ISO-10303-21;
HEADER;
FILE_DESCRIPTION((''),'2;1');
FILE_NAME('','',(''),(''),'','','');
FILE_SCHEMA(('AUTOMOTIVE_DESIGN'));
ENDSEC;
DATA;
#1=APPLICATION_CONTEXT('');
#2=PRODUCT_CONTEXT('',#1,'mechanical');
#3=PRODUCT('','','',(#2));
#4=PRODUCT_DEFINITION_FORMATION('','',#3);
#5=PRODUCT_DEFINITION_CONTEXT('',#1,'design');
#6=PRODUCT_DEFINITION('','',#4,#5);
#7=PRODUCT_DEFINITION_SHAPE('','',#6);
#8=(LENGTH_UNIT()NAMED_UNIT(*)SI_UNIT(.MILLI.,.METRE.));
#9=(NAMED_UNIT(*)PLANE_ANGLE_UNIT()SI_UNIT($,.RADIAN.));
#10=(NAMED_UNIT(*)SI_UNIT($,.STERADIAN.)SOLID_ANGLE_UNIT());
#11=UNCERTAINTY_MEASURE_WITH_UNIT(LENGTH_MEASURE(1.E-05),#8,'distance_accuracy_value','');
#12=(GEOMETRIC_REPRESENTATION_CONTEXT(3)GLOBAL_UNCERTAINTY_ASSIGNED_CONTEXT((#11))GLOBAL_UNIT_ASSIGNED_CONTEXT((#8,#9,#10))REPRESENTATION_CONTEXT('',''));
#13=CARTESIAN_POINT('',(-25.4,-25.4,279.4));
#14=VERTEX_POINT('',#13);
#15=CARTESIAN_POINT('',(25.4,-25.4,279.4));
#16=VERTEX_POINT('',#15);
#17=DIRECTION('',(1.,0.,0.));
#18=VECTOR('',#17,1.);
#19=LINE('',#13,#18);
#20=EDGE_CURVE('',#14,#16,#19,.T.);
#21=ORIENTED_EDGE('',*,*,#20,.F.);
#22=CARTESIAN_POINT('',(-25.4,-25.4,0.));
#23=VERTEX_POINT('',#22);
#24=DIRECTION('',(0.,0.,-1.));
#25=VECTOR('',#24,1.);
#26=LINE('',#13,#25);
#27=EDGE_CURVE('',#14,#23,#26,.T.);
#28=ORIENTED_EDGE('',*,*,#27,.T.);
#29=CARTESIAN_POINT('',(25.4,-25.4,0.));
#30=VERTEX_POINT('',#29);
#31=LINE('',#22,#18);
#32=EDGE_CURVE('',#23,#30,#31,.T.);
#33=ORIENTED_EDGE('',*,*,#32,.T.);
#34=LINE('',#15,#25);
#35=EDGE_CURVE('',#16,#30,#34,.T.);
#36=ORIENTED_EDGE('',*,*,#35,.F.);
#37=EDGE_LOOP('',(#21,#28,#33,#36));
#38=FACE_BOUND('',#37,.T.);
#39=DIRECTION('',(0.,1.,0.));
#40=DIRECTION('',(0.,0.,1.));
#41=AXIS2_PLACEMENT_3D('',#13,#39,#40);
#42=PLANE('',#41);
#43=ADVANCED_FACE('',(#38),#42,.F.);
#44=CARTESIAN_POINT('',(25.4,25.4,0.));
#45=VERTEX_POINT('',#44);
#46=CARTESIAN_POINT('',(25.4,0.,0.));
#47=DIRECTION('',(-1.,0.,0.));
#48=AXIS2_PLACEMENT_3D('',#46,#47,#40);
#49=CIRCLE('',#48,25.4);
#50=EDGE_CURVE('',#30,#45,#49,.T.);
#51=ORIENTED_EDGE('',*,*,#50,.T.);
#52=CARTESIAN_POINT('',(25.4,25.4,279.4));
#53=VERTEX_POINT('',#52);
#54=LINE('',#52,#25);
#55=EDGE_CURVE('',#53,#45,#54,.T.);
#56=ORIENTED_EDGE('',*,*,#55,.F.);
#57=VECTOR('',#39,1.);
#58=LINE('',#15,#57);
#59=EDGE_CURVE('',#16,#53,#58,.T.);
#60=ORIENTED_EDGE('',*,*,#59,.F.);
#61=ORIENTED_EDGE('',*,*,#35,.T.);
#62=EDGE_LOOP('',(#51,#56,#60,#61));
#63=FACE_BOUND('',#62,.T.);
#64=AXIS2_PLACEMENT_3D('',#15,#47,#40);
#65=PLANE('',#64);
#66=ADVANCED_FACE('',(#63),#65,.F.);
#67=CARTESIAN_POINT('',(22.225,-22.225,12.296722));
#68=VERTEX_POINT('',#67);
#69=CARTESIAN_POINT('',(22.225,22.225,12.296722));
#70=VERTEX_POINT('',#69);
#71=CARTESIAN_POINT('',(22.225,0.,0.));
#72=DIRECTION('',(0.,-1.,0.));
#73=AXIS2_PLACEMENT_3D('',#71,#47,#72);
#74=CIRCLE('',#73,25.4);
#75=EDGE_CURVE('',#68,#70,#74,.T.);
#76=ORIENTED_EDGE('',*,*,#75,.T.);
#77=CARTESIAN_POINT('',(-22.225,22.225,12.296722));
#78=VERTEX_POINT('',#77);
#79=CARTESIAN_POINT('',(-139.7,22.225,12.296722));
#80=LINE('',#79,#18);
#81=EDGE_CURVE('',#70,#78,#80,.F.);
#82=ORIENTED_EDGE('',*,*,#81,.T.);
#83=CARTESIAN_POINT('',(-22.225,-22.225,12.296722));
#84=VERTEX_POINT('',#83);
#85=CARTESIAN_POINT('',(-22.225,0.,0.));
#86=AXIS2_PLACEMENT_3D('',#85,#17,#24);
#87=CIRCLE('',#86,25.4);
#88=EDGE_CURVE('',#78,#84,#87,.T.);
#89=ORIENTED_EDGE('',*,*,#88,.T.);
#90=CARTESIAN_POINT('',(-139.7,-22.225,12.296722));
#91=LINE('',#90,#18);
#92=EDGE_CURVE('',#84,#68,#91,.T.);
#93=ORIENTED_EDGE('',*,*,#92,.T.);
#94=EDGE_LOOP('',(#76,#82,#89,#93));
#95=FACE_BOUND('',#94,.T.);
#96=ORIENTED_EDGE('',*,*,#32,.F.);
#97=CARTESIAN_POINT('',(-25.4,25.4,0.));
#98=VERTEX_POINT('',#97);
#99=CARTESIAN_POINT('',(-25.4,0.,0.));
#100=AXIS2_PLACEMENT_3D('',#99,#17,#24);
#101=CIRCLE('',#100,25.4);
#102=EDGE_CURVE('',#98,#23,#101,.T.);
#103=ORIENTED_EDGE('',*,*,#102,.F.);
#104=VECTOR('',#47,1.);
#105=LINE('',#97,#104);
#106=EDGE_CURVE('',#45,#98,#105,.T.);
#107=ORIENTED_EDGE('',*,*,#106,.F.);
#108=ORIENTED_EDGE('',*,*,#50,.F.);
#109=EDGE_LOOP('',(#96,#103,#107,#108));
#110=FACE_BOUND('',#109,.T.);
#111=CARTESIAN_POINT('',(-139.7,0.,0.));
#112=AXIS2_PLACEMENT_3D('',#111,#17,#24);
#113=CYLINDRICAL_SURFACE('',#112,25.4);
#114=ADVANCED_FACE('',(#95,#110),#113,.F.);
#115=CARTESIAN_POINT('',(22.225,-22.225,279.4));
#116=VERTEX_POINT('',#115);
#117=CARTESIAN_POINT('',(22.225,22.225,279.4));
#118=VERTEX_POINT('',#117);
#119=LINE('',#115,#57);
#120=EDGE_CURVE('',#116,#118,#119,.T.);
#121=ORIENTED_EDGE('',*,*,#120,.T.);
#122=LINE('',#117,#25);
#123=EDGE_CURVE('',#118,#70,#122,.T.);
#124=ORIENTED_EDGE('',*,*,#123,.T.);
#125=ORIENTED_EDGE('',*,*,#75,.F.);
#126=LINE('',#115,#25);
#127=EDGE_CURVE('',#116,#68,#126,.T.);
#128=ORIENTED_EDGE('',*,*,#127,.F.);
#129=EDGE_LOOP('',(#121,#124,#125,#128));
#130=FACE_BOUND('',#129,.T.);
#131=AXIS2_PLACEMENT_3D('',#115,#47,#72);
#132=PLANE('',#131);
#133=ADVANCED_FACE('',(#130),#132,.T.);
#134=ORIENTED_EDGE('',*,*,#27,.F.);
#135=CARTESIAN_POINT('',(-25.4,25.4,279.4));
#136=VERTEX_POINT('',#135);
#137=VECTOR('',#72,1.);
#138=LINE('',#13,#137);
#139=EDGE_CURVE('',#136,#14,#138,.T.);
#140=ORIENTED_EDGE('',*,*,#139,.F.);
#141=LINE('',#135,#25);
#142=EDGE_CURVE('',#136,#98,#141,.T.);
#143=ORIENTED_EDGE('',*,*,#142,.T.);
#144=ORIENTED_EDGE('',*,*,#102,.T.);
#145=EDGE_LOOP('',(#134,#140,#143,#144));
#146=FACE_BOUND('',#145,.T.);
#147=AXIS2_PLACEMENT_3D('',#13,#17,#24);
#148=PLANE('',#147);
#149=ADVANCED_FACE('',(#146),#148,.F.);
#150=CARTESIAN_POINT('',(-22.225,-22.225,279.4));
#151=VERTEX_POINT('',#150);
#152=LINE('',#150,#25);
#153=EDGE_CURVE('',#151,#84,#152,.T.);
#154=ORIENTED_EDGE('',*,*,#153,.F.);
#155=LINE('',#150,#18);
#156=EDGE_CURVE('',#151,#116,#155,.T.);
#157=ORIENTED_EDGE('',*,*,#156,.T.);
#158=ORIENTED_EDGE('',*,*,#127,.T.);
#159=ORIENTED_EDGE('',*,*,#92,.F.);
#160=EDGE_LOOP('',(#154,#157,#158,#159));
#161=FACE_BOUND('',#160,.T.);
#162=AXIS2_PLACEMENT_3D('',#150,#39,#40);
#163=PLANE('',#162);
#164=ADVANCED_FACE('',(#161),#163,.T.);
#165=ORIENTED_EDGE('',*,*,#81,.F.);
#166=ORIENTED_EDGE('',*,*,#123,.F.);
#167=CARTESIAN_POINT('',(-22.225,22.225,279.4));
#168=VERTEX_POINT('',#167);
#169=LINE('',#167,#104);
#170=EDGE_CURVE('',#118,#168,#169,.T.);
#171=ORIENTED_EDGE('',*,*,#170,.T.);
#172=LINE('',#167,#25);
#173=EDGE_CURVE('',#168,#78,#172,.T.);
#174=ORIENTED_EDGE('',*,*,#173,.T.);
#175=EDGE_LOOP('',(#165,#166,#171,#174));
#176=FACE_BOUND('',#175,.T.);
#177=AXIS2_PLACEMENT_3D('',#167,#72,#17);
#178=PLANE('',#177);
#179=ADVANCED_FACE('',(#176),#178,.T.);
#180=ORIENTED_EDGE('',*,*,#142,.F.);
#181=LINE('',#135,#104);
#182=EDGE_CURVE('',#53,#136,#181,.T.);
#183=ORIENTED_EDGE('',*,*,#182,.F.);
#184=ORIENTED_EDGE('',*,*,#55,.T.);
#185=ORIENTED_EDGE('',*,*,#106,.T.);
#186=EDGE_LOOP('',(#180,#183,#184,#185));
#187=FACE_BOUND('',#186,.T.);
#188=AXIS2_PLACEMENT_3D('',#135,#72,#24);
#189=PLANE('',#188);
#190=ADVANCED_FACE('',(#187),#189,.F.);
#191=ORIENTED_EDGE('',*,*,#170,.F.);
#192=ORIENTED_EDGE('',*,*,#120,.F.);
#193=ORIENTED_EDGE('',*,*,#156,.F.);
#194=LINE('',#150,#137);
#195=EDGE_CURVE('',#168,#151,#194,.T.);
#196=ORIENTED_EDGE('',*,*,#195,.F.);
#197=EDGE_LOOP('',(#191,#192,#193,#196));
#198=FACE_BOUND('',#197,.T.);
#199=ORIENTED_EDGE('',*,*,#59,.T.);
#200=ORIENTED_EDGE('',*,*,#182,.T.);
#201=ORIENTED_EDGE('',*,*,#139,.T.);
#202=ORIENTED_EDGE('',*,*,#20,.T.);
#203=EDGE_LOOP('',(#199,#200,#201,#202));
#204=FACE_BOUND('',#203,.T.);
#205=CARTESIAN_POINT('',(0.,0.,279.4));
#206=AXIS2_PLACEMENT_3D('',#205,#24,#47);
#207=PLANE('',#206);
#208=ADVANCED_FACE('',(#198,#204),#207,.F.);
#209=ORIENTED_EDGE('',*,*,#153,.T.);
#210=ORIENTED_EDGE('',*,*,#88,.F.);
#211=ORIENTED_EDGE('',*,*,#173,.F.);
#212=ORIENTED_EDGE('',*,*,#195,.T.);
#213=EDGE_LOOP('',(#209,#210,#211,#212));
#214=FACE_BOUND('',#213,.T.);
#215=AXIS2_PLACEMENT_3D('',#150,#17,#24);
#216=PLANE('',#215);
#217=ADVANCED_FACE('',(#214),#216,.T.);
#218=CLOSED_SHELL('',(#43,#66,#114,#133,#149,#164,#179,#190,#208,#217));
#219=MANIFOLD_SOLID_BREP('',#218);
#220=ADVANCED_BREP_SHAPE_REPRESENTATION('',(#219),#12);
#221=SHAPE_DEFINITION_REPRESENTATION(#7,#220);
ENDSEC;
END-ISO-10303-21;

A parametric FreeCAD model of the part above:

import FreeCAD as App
import Part
import Sketcher

V = App.Vector
Q = App.Units.Quantity


def add_polygon(sketch, points):
    """Adds a closed chain of lines whose ends are joined by coincident constraints."""
    first, n = sketch.GeometryCount, len(points)
    for a, b in zip(points, points[1:] + points[:1]):
        sketch.addGeometry(Part.LineSegment(App.Vector(*a, 0), App.Vector(*b, 0)), False)
    for i in range(n):
        sketch.addConstraint(Sketcher.Constraint("Coincident", first + i, 2, first + (i + 1) % n, 1))

doc = App.newDocument("Part")
body = doc.addObject("PartDesign::Body", "Body")

sketch1 = body.newObject("Sketcher::SketchObject", "Sketch")
sketch1.AttachmentSupport = (doc.getObject("XY_Plane"), [""])
sketch1.MapMode = "FlatFace"
add_polygon(sketch1, [(-25, 25), (-25, -25), (25, -25), (25, 25)])
add_polygon(sketch1, [(22, -22), (-22, -22), (-22, 22), (22, 22)])
sketch1.addConstraint([
    Sketcher.Constraint("Vertical", 0),
    Sketcher.Constraint("Horizontal", 1),
    Sketcher.Constraint("Vertical", 2),
    Sketcher.Constraint("Horizontal", 3),
    Sketcher.Constraint("Horizontal", 4),
    Sketcher.Constraint("Vertical", 5),
    Sketcher.Constraint("Horizontal", 6),
    Sketcher.Constraint("Vertical", 7),
    Sketcher.Constraint("Symmetric", 0, 2, 2, 2, -1, 1),
    Sketcher.Constraint("Symmetric", 4, 2, 6, 2, -1, 1),
    Sketcher.Constraint("Equal", 3, 0),
    Sketcher.Constraint("Equal", 6, 5),
    Sketcher.Constraint("DistanceX", 1, 1, 1, 2, Q("2 in")),
    Sketcher.Constraint("DistanceX", 4, 2, 4, 1, Q("1.75 in")),
])
pad1 = body.newObject("PartDesign::Pad", "Pad")
pad1.Profile = sketch1
pad1.Length = Q("11 in")

sketch2 = body.newObject("Sketcher::SketchObject", "Sketch001")
sketch2.AttachmentSupport = (doc.getObject("YZ_Plane"), [""])
sketch2.MapMode = "FlatFace"
sketch2.addGeometry(Part.Circle(V(0, 0, 0), V(0, 0, 1), 25), False)
sketch2.addConstraint([
    Sketcher.Constraint("Coincident", 0, 3, -1, 1),
    Sketcher.Constraint("Diameter", 0, Q("2 in")),
])
pocket1 = body.newObject("PartDesign::Pocket", "Pocket")
pocket1.Profile = sketch2
pocket1.Length = Q("11 in")
pocket1.Midplane = True

doc.recompute()
